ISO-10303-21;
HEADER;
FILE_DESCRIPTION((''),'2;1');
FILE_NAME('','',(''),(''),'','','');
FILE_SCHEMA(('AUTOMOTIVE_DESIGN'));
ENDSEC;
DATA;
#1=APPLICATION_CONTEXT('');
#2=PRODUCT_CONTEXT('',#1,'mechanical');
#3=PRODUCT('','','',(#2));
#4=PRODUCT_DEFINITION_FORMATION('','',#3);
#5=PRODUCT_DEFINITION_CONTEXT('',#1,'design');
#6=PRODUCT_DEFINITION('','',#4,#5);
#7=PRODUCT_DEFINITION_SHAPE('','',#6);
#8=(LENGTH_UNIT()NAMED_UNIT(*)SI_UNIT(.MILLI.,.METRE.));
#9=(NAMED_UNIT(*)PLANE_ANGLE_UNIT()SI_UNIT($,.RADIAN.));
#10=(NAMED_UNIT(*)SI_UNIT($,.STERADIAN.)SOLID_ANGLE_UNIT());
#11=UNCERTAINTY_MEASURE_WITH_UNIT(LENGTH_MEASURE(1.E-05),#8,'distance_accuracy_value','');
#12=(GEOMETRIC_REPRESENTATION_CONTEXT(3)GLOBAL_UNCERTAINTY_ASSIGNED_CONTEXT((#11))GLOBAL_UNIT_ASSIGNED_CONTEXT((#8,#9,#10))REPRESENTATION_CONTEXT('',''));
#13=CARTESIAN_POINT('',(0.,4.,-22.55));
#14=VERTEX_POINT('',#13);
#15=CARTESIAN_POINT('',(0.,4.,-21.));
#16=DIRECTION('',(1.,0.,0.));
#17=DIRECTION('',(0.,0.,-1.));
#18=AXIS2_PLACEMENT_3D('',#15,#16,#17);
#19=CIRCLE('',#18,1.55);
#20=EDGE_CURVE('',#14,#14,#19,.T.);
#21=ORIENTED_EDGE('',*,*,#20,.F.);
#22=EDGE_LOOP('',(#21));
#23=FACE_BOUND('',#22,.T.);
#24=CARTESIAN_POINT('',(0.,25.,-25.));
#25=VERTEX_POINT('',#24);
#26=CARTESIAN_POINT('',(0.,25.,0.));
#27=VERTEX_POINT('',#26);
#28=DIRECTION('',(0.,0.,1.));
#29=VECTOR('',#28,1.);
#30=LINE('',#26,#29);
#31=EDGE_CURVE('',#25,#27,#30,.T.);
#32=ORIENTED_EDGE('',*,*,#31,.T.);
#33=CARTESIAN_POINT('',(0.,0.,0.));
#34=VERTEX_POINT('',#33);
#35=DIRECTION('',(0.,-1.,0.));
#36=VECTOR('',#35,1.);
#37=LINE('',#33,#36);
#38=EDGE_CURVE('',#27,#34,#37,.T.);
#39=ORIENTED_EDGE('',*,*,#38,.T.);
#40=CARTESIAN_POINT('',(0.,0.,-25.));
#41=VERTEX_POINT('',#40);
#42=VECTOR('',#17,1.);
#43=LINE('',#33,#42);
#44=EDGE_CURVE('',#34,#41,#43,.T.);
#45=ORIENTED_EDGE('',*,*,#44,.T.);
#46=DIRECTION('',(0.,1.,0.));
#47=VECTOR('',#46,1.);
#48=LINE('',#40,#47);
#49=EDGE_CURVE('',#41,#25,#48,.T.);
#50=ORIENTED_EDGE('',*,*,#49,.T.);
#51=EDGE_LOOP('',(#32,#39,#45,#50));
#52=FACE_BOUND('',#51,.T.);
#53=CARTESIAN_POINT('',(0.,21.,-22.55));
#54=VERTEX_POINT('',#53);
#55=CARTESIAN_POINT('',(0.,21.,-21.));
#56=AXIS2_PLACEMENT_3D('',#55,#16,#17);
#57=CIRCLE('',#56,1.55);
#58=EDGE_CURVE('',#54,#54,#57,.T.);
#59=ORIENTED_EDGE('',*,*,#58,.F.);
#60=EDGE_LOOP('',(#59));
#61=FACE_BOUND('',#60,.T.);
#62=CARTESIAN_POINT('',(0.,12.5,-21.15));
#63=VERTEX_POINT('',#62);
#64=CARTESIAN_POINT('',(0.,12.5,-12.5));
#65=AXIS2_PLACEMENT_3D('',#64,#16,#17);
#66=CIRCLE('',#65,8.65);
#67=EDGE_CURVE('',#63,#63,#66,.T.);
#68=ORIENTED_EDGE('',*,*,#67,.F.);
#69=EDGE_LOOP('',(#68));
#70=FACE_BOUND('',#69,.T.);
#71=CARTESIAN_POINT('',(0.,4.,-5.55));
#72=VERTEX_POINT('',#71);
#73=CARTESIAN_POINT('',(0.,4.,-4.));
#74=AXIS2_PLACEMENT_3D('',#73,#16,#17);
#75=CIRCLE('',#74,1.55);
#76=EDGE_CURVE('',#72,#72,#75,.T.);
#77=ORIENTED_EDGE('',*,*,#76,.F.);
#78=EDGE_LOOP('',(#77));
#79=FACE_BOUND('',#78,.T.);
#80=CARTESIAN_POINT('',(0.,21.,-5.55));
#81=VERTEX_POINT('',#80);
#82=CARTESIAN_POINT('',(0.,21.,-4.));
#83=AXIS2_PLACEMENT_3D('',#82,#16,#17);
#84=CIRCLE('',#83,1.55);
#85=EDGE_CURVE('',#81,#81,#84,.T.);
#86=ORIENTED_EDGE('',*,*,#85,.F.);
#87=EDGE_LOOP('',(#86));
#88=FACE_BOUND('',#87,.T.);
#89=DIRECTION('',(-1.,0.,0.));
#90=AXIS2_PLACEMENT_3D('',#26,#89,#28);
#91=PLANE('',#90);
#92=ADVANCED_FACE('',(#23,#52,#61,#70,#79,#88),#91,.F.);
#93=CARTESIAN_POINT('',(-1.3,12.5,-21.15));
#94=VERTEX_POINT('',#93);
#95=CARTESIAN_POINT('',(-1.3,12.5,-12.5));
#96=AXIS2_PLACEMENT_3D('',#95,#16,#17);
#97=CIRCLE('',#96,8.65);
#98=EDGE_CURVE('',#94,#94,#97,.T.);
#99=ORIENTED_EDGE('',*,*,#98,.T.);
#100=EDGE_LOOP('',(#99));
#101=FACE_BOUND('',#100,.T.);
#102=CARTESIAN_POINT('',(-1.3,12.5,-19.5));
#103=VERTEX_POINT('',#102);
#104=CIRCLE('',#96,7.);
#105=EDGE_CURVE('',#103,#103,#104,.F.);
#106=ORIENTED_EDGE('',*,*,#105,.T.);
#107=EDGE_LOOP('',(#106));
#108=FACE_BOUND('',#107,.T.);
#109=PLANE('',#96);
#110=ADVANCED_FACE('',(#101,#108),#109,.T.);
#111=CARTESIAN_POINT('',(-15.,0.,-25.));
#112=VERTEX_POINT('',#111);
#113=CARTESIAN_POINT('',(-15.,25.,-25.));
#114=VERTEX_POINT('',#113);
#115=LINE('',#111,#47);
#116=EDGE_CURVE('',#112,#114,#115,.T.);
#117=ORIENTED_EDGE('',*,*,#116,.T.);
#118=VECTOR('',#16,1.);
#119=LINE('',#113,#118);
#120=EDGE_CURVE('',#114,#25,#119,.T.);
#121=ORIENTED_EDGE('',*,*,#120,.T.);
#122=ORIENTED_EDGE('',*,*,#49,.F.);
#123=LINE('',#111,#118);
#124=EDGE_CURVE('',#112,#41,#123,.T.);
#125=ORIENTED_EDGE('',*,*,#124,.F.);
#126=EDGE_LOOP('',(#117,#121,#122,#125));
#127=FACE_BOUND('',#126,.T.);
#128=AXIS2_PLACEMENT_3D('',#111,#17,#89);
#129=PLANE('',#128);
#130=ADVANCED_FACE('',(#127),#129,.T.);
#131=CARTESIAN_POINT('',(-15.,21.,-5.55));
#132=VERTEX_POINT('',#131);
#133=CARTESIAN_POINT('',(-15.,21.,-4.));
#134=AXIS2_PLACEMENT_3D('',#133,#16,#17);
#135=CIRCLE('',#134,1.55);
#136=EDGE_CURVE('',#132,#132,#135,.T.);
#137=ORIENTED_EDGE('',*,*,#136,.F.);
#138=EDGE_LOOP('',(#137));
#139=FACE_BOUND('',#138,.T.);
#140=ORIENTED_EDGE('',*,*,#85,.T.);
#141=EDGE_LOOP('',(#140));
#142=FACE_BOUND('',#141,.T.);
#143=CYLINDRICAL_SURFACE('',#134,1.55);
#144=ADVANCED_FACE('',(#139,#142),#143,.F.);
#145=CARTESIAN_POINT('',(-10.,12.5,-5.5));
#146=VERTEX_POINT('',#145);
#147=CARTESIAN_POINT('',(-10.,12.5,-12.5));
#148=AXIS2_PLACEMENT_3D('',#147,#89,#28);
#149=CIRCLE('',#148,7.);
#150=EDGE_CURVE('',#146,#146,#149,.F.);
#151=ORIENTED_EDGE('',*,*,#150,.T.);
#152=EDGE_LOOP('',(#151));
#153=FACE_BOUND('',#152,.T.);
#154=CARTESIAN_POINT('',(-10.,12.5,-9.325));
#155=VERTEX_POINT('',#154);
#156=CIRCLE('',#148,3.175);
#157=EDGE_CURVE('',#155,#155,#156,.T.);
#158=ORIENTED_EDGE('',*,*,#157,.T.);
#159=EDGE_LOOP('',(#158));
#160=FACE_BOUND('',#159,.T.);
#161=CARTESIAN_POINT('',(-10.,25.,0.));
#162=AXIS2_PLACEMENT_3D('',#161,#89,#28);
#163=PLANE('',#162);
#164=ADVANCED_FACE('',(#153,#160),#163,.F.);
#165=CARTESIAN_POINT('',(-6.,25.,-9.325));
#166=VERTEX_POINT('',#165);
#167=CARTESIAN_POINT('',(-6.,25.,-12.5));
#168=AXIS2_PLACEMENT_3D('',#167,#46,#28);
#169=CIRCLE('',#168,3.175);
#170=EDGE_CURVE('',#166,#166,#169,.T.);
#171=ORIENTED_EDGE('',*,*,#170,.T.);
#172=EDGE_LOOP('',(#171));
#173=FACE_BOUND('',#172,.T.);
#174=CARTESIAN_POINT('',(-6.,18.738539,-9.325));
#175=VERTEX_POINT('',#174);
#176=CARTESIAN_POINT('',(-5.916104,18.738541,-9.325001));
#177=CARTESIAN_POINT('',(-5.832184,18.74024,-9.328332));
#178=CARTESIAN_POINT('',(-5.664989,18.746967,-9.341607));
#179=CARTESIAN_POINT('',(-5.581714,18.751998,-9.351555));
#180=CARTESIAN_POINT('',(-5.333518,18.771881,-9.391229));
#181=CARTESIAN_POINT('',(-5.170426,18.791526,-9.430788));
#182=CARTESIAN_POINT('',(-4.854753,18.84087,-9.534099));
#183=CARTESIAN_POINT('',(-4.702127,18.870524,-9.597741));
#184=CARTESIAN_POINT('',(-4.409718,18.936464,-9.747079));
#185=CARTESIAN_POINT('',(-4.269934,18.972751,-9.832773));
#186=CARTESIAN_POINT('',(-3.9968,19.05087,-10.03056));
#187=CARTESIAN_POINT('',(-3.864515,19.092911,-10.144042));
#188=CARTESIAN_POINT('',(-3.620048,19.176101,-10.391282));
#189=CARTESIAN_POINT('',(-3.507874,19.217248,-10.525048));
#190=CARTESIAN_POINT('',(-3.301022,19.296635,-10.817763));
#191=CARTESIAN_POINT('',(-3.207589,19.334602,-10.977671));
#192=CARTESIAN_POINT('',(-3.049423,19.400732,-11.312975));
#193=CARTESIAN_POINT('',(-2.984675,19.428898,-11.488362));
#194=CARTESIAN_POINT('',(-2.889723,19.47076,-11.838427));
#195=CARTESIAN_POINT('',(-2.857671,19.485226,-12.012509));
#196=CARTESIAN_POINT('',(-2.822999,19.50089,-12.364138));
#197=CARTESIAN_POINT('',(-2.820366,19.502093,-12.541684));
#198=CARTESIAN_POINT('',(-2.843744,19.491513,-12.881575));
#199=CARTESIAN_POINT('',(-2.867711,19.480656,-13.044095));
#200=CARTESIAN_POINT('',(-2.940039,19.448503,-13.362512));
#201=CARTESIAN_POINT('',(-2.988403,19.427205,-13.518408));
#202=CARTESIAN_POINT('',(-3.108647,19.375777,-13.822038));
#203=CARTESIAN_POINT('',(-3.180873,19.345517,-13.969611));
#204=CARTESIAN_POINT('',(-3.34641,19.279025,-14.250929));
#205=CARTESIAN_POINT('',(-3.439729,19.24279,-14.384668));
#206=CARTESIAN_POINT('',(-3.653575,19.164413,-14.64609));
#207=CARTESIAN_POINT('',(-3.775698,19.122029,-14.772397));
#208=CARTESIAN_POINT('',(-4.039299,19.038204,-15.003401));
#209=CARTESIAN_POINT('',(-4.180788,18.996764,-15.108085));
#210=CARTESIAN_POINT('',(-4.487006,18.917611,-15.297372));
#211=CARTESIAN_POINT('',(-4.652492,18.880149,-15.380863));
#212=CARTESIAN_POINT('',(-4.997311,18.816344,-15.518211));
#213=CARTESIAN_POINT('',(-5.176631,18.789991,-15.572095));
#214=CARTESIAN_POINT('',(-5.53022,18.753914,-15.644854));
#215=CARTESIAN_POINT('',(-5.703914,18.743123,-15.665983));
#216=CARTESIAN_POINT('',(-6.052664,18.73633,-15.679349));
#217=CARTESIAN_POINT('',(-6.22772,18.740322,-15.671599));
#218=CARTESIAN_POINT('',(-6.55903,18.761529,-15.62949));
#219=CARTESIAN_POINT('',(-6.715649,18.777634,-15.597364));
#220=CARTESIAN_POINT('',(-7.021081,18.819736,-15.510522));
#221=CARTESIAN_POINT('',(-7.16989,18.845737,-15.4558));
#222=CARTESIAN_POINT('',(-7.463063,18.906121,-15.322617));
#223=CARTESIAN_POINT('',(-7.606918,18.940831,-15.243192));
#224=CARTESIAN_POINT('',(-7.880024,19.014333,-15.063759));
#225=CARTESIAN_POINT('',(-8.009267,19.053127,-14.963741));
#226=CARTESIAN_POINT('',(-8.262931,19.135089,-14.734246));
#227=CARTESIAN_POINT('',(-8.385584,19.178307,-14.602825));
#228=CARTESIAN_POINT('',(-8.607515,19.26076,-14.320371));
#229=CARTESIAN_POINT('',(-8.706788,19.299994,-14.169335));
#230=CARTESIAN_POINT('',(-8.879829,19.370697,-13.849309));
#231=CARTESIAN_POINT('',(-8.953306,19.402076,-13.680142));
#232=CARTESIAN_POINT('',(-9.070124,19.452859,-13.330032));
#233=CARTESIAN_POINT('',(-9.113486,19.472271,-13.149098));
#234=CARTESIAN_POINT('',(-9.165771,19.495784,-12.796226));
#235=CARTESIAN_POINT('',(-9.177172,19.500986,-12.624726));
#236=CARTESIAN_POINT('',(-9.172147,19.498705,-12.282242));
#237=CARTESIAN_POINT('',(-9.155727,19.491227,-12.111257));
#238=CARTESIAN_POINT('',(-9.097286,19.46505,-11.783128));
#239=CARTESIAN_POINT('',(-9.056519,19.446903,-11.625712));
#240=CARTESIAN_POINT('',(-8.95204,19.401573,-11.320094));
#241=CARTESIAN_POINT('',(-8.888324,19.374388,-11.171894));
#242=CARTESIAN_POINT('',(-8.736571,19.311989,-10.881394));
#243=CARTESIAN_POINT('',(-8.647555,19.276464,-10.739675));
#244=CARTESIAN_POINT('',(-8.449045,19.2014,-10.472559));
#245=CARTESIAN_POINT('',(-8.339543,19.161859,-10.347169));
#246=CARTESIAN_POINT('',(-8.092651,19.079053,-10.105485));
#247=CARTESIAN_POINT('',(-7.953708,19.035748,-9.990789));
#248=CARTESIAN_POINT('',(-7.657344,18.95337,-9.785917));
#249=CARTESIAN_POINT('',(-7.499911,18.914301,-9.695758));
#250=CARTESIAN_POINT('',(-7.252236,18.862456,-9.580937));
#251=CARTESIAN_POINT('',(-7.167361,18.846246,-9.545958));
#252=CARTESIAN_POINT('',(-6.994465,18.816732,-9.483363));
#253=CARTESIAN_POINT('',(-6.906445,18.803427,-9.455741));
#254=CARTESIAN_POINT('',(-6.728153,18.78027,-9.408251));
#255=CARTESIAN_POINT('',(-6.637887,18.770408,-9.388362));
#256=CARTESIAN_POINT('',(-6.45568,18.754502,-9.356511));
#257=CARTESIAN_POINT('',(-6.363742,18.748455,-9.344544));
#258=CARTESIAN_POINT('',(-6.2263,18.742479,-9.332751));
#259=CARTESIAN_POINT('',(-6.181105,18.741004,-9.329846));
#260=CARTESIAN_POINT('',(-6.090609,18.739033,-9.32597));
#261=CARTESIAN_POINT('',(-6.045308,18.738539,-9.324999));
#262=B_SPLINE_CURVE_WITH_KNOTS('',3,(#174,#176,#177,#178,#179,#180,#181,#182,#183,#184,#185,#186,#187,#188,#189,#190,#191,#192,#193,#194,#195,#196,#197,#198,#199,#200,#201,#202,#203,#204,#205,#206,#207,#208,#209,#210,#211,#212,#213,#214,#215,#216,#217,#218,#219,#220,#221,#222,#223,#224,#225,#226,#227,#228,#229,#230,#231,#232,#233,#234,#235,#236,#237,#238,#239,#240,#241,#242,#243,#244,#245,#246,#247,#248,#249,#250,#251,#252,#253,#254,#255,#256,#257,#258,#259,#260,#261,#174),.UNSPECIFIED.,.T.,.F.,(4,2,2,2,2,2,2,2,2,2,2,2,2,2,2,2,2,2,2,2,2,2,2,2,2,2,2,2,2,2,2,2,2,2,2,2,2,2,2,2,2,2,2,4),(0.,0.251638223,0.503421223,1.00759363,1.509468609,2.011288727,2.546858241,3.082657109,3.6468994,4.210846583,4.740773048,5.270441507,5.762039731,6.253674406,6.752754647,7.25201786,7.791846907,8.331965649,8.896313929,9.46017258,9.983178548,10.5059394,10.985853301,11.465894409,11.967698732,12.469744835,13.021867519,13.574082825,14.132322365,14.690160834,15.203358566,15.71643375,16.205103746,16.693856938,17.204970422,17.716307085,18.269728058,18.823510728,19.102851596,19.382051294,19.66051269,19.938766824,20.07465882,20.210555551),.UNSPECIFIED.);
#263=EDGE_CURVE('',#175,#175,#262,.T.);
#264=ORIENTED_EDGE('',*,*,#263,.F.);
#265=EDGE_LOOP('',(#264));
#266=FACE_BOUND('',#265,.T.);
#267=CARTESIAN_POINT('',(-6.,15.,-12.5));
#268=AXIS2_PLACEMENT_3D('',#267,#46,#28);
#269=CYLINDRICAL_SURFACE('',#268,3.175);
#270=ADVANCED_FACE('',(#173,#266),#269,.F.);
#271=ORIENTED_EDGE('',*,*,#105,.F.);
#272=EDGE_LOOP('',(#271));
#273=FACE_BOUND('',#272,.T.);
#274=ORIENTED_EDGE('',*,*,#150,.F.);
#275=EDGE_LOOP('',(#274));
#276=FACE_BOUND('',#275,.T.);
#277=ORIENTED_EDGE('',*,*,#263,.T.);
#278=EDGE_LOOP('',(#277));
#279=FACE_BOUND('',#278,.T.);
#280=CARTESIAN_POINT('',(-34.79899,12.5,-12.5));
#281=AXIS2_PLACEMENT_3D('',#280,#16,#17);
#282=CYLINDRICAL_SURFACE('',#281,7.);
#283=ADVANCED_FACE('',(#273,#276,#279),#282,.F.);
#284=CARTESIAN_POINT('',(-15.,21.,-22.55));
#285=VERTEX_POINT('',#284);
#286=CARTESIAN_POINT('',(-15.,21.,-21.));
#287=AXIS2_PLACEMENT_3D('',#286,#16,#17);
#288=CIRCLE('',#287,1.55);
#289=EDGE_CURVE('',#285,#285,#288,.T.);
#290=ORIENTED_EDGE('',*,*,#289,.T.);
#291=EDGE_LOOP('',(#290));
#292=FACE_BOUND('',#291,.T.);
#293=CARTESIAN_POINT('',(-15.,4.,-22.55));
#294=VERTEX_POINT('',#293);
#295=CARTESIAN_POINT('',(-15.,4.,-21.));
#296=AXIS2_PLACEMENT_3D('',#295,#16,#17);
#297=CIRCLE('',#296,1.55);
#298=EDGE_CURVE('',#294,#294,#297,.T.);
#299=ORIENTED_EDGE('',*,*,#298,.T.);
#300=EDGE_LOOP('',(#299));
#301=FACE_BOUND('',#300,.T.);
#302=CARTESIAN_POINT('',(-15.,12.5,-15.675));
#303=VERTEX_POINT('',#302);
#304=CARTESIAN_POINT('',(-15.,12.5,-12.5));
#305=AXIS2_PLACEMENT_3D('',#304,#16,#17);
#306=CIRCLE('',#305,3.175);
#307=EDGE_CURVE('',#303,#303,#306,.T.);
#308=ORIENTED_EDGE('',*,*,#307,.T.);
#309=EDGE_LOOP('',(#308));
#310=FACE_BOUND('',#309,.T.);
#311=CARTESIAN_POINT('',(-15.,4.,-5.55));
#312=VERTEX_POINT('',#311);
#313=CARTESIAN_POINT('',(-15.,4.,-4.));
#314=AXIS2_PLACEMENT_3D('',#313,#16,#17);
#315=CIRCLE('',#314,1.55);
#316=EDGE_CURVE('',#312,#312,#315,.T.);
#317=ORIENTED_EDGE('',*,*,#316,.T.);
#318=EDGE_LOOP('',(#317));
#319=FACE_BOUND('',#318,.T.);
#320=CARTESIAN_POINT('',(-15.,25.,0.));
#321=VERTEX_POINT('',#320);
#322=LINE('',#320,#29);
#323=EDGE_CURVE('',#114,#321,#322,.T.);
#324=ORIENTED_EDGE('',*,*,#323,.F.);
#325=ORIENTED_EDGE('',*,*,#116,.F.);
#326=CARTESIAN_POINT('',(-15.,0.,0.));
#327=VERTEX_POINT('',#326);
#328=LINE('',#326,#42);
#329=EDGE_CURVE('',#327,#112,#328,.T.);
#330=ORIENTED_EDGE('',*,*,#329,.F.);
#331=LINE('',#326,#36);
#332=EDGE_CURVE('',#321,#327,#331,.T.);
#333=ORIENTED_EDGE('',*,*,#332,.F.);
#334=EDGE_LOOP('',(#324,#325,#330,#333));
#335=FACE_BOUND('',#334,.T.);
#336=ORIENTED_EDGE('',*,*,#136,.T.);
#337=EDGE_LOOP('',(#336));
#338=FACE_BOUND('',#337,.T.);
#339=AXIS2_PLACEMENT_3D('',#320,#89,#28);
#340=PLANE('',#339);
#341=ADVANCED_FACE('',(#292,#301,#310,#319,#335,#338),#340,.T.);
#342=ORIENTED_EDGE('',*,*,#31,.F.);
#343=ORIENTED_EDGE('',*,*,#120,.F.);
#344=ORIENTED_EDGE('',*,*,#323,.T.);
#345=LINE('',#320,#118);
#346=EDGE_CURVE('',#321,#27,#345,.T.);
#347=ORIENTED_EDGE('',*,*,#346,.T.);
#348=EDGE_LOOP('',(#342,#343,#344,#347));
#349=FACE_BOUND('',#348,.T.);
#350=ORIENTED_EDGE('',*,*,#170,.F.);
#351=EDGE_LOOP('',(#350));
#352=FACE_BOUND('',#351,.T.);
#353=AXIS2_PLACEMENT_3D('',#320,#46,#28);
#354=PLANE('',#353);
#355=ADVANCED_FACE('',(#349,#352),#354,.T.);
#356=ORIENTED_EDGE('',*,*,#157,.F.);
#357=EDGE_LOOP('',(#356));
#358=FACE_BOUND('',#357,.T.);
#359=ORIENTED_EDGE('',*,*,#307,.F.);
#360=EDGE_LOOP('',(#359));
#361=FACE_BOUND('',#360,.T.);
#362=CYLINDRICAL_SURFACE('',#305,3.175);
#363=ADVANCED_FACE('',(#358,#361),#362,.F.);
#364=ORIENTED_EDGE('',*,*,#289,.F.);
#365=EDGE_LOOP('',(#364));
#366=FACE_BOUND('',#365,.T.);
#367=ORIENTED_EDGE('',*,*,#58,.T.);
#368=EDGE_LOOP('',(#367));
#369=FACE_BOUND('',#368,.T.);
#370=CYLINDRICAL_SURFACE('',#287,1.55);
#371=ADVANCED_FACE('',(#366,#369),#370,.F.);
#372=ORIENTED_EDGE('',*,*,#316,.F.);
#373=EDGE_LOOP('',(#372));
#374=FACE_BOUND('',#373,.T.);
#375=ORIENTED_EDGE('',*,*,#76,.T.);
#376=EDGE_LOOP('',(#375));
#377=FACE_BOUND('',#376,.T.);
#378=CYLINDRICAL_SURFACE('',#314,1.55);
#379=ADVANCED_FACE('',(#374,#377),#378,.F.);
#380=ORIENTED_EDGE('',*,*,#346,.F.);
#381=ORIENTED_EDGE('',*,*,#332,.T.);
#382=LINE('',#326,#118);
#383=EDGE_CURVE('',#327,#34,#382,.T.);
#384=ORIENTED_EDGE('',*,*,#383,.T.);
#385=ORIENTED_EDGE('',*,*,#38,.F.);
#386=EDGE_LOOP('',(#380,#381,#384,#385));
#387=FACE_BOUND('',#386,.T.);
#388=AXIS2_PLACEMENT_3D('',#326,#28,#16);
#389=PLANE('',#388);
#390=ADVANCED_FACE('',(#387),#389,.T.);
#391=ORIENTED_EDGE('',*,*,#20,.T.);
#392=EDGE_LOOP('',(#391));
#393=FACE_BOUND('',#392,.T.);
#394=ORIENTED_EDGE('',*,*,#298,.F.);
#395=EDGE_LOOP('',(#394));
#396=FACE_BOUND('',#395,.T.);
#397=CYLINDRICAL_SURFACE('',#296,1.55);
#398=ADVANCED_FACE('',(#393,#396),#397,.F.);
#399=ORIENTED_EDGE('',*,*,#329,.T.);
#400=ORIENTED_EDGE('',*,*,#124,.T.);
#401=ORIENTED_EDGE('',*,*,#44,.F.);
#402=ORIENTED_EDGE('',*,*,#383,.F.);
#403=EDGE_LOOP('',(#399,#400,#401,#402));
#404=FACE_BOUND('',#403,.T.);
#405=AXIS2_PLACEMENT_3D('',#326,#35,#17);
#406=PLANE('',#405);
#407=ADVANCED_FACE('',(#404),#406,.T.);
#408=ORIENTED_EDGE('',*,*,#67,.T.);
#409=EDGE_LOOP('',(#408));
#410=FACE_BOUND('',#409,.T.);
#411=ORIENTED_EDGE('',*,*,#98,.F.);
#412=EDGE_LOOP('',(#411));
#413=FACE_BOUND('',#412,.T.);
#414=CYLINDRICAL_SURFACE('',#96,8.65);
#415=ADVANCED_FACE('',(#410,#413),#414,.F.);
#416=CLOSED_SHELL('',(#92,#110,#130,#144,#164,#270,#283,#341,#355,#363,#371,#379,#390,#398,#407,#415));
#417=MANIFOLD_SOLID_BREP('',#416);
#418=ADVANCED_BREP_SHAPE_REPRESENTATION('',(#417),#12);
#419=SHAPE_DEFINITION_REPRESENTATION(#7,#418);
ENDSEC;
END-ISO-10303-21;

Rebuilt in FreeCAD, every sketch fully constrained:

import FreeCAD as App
import Part
import Sketcher


def add_polygon(sketch, points):
    """Adds a closed chain of lines whose ends are joined by coincident constraints."""
    first, n = sketch.GeometryCount, len(points)
    for a, b in zip(points, points[1:] + points[:1]):
        sketch.addGeometry(Part.LineSegment(App.Vector(*a, 0), App.Vector(*b, 0)), False)
    for i in range(n):
        sketch.addConstraint(Sketcher.Constraint("Coincident", first + i, 2, first + (i + 1) % n, 1))

doc = App.newDocument("Part")
body = doc.addObject("PartDesign::Body", "Body")

# Sketch on YZ plane
sketch1 = body.newObject("Sketcher::SketchObject", "Sketch")
sketch1.AttachmentSupport = (doc.getObject("YZ_Plane"), [""])
sketch1.MapMode = "FlatFace"
add_polygon(sketch1, [(25, 0), (0, 0), (0, -25), (25, -25)])  # lines 0-3
sketch1.addGeometry(Part.Circle(App.Vector(4, -4, 0), App.Vector(0, 0, 1), 1.6), False)  # 4
sketch1.addGeometry(Part.Circle(App.Vector(4, -21, 0), App.Vector(0, 0, 1), 1.6), False)  # 5
sketch1.addGeometry(Part.Circle(App.Vector(21, -4, 0), App.Vector(0, 0, 1), 1.6), False)  # 6
sketch1.addGeometry(Part.Circle(App.Vector(21, -21, 0), App.Vector(0, 0, 1), 1.6), False)  # 7
sketch1.addConstraint([
    Sketcher.Constraint("Horizontal", 0),
    Sketcher.Constraint("Vertical", 1),
    Sketcher.Constraint("Horizontal", 2),
    Sketcher.Constraint("Vertical", 3),
    Sketcher.Constraint("Coincident", 0, 2, -1, 1),
    Sketcher.Constraint("Equal", 4, 5),
    Sketcher.Constraint("Equal", 5, 6),
    Sketcher.Constraint("Equal", 6, 7),
    Sketcher.Constraint("Horizontal", 4, 3, 6, 3),
    Sketcher.Constraint("Horizontal", 5, 3, 7, 3),
    Sketcher.Constraint("Vertical", 4, 3, 5, 3),
    Sketcher.Constraint("Vertical", 6, 3, 7, 3),
    Sketcher.Constraint("Equal", 2, 1),
    Sketcher.Constraint("Diameter", 4, 3.1),
    Sketcher.Constraint("DistanceX", 0, 2, 0, 1, 25.0),
    Sketcher.Constraint("DistanceX", -1, 1, 4, 3, 4.0),
    Sketcher.Constraint("DistanceY", 4, 3, -1, 1, 4.0),
    Sketcher.Constraint("DistanceY", 5, 3, -1, 1, 21.0),
    Sketcher.Constraint("DistanceX", -1, 1, 6, 3, 21.0),
])
pad1 = body.newObject("PartDesign::Pad", "Pad")
pad1.Profile = sketch1
pad1.Length = 15
pad1.Reversed = True

# Sketch on YZ plane
sketch2 = body.newObject("Sketcher::SketchObject", "Sketch001")
sketch2.AttachmentSupport = (doc.getObject("YZ_Plane"), [""])
sketch2.MapMode = "FlatFace"
sketch2.addGeometry(Part.Circle(App.Vector(12, -12, 0), App.Vector(0, 0, 1), 7), False)
sketch2.addConstraint([
    Sketcher.Constraint("Diameter", 0, 14.0),
    Sketcher.Constraint("DistanceX", -1, 1, 0, 3, 12.5),
    Sketcher.Constraint("DistanceY", 0, 3, -1, 1, 12.5),
])
pocket1 = body.newObject("PartDesign::Pocket", "Pocket")
pocket1.Profile = sketch2
pocket1.Length = 10

# Sketch on YZ plane
sketch3 = body.newObject("Sketcher::SketchObject", "Sketch002")
sketch3.AttachmentSupport = (doc.getObject("YZ_Plane"), [""])
sketch3.MapMode = "FlatFace"
sketch3.addGeometry(Part.Circle(App.Vector(12.5, -12.5, 0), App.Vector(0, 0, 1), 3.2), False)
sketch3.addConstraint([
    Sketcher.Constraint("Diameter", 0, 6.35),
    Sketcher.Constraint("DistanceX", -1, 1, 0, 3, 12.5),
    Sketcher.Constraint("DistanceY", 0, 3, -1, 1, 12.5),
])
pocket2 = body.newObject("PartDesign::Pocket", "Pocket001")
pocket2.Profile = sketch3
pocket2.Type = "ThroughAll"

# Sketch on XZ plane
sketch4 = body.newObject("Sketcher::SketchObject", "Sketch003")
sketch4.AttachmentSupport = (doc.getObject("XZ_Plane"), [""])
sketch4.MapMode = "FlatFace"
sketch4.AttachmentOffset = App.Placement(App.Vector(0, 0, -25), App.Rotation())
sketch4.addGeometry(Part.Circle(App.Vector(-6, -12.5, 0), App.Vector(0, 0, 1), 3.2), False)
sketch4.addConstraint([
    Sketcher.Constraint("Diameter", 0, 6.35),
    Sketcher.Constraint("DistanceX", 0, 3, -1, 1, 6.0),
    Sketcher.Constraint("DistanceY", 0, 3, -1, 1, 12.5),
])
pocket3 = body.newObject("PartDesign::Pocket", "Pocket002")
pocket3.Profile = sketch4
pocket3.Length = 10
pocket3.Reversed = True

# Sketch on YZ plane
sketch5 = body.newObject("Sketcher::SketchObject", "Sketch004")
sketch5.AttachmentSupport = (doc.getObject("YZ_Plane"), [""])
sketch5.MapMode = "FlatFace"
sketch5.addGeometry(Part.Circle(App.Vector(12, -12, 0), App.Vector(0, 0, 1), 9), False)
sketch5.addConstraint([
    Sketcher.Constraint("Diameter", 0, 17.3),
    Sketcher.Constraint("DistanceX", -1, 1, 0, 3, 12.5),
    Sketcher.Constraint("DistanceY", 0, 3, -1, 1, 12.5),
])
pocket4 = body.newObject("PartDesign::Pocket", "Pocket003")
pocket4.Profile = sketch5
pocket4.Length = 1.3

doc.recompute()
